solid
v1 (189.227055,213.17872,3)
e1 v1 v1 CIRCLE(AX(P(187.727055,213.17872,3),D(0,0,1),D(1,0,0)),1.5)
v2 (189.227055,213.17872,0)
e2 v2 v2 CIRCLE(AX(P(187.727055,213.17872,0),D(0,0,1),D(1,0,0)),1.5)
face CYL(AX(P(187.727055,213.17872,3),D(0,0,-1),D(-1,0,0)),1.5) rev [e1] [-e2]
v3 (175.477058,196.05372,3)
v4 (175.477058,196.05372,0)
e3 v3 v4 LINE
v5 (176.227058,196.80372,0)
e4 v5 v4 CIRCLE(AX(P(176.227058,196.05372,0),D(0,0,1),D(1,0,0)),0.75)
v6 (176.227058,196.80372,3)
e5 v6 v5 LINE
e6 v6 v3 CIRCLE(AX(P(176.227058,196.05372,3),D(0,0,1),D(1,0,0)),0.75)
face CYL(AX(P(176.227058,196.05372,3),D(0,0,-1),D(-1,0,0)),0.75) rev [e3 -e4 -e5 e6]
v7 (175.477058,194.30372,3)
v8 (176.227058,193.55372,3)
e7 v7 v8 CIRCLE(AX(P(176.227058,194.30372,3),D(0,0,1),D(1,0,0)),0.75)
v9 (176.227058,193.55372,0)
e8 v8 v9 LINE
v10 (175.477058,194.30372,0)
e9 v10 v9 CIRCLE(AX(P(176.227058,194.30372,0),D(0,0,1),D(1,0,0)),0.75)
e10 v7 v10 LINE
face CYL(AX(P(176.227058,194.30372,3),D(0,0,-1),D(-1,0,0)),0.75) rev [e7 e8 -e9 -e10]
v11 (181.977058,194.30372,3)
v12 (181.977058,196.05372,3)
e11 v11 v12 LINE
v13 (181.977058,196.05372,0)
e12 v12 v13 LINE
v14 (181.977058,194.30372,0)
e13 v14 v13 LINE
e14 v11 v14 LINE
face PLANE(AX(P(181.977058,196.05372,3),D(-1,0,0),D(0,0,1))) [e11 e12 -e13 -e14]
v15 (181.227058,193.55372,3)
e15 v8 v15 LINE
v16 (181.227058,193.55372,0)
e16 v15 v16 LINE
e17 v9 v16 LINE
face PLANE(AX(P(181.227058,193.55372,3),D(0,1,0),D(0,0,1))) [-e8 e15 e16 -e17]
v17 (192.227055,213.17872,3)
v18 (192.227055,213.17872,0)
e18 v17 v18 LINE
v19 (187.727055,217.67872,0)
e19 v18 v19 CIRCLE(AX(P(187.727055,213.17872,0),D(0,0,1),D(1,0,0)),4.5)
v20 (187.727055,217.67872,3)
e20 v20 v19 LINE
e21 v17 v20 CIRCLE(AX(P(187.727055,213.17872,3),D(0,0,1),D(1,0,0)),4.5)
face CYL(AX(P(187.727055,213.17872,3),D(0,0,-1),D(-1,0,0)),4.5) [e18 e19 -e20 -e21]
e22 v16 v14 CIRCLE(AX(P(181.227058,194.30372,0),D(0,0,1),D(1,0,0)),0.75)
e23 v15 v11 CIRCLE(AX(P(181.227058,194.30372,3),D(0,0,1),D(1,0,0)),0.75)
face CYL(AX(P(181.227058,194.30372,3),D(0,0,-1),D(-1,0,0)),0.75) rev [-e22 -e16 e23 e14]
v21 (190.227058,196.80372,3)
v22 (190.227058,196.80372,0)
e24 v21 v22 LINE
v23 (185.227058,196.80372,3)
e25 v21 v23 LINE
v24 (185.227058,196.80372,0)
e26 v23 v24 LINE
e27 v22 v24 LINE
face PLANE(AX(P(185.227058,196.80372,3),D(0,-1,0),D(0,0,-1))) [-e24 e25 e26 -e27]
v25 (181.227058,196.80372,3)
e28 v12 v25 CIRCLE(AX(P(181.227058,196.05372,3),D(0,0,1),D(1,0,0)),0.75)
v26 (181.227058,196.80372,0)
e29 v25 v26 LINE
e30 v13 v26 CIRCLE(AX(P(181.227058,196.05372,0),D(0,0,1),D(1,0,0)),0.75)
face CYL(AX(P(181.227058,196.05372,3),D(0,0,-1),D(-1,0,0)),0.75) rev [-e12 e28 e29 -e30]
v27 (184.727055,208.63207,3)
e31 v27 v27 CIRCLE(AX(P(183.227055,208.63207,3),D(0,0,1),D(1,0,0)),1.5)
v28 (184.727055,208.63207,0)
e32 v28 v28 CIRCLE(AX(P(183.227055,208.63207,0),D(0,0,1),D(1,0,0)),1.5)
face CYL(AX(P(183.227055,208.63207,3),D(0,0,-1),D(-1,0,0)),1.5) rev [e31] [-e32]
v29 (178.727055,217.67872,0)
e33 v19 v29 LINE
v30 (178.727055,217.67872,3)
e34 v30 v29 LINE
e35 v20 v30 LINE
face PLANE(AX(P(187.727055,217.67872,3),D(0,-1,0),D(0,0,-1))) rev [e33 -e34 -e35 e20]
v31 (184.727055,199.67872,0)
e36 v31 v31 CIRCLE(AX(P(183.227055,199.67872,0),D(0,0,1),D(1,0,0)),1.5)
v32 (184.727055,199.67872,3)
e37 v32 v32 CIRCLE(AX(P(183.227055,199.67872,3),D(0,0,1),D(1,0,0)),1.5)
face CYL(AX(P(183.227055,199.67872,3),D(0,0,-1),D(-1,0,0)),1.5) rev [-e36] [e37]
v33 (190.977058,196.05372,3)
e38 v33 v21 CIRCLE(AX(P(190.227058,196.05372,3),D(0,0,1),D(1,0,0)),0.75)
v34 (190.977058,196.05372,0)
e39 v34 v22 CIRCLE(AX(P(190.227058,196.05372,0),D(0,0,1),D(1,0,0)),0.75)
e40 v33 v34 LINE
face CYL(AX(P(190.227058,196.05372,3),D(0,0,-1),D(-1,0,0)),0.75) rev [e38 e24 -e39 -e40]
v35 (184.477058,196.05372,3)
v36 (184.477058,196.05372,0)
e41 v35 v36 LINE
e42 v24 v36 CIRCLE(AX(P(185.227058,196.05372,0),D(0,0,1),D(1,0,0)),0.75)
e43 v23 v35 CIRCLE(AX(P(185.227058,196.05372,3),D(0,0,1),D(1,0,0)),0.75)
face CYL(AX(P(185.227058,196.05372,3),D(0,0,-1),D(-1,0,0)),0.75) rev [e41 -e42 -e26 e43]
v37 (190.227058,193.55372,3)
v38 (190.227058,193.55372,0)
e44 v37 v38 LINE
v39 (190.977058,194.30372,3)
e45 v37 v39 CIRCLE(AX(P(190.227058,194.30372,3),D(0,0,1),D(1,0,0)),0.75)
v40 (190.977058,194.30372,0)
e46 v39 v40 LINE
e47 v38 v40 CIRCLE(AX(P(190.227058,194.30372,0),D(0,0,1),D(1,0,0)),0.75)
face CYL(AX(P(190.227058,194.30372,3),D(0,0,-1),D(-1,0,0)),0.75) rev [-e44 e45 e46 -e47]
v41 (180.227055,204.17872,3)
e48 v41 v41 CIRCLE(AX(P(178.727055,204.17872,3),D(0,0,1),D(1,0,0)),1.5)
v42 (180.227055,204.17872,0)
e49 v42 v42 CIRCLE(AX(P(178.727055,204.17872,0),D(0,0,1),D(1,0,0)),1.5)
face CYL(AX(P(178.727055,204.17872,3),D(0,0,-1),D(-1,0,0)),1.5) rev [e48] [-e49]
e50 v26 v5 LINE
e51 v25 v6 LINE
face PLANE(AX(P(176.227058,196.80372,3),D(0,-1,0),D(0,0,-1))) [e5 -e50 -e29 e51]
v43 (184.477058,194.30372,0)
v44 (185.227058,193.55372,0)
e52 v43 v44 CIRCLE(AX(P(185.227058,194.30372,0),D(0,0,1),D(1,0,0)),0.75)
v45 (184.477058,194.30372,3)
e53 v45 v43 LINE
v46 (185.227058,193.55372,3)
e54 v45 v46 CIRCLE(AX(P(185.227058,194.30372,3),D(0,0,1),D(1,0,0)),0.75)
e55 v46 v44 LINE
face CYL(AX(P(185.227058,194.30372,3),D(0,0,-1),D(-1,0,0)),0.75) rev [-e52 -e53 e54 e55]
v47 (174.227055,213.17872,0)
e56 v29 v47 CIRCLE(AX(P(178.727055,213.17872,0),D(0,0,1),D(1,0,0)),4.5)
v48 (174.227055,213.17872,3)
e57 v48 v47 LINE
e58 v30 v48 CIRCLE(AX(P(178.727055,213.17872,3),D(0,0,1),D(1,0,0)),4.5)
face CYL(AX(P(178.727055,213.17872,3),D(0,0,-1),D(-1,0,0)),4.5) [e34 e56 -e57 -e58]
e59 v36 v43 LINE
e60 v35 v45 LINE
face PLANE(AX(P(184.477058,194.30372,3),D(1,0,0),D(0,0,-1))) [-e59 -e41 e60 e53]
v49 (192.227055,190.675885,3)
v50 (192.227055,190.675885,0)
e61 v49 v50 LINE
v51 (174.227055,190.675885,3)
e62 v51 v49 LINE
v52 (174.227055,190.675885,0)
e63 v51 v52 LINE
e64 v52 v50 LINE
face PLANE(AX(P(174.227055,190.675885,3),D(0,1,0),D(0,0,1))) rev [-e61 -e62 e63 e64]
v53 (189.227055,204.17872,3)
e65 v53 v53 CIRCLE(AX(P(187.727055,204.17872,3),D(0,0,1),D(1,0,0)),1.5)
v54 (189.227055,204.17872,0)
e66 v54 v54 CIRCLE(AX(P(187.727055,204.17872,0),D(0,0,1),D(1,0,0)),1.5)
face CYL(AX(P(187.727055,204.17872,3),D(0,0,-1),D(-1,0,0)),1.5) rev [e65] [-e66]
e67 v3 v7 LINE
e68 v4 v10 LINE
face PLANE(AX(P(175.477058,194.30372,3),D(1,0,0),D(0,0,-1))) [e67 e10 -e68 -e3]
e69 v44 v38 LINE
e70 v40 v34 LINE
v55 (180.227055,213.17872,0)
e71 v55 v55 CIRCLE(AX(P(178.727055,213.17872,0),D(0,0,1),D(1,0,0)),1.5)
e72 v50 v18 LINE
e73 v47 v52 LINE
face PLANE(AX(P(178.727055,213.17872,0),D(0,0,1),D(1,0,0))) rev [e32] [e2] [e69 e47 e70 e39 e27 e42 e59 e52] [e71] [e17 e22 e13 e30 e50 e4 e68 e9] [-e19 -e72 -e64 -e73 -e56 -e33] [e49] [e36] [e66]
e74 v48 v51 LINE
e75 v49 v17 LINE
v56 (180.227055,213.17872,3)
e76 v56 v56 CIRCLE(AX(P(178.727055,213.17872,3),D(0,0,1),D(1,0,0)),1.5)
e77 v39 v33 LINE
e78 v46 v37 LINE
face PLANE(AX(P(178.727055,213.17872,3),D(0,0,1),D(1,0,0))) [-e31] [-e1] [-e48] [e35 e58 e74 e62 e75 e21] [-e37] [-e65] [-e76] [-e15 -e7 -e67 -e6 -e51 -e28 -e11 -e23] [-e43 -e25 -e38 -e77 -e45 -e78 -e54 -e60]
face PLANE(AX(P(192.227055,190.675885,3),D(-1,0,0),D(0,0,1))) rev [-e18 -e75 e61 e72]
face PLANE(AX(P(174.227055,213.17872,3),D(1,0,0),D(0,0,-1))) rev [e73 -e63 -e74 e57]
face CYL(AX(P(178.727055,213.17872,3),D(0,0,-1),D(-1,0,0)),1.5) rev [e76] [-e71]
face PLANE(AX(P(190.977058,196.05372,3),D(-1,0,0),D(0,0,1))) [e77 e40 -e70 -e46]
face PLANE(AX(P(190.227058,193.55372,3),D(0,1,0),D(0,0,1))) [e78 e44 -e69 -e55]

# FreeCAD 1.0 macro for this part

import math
import FreeCAD as App
import Part
import Sketcher

doc = App.newDocument("Part")
params = doc.addObject("Spreadsheet::Sheet", "Params")
for row, (alias, value) in enumerate([
    ("sketch1_diameter", "3 mm"),
    ("sketch1_radius", "4.5 mm"),
    ("sketch1_width", "18 mm"),
    ("sketch1_width2", "5 mm"),
    ("sketch1_radius2", "0.75 mm"),
    ("pad1_length", "3 mm"),
], start=1):
    params.set(f"A{row}", alias)
    params.set(f"B{row}", "=" + value)
    params.setAlias(f"B{row}", alias)

body = doc.addObject("PartDesign::Body", "Body")

# Sketch on XY plane
sketch1 = body.newObject("Sketcher::SketchObject", "Sketch")
sketch1.AttachmentSupport = (doc.getObject("XY_Plane"), [""])
sketch1.MapMode = "FlatFace"
sketch1.addGeometry([
    Part.LineSegment(App.Vector(174.2, 190.7, 0), App.Vector(192.2, 190.7, 0)),  # 0
    Part.LineSegment(App.Vector(192.2, 190.7, 0), App.Vector(192.2, 213.2, 0)),  # 1
    Part.ArcOfCircle(Part.Circle(App.Vector(187.7, 213.2, 0), App.Vector(0, 0, 1), 4.5), math.radians(0), math.radians(90)),  # 2
    Part.LineSegment(App.Vector(187.7, 217.7, 0), App.Vector(178.7, 217.7, 0)),  # 3
    Part.ArcOfCircle(Part.Circle(App.Vector(178.7, 213.2, 0), App.Vector(0, 0, 1), 4.5), math.radians(90), math.radians(180)),  # 4
    Part.LineSegment(App.Vector(174.2, 213.2, 0), App.Vector(174.2, 190.7, 0)),  # 5
    Part.ArcOfCircle(Part.Circle(App.Vector(181.2, 194.3, 0), App.Vector(0, 0, 1), 0.8), math.radians(-90), math.radians(0)),  # 6
    Part.LineSegment(App.Vector(181.2, 193.6, 0), App.Vector(176.2, 193.6, 0)),  # 7
    Part.ArcOfCircle(Part.Circle(App.Vector(176.2, 194.3, 0), App.Vector(0, 0, 1), 0.8), math.radians(180), math.radians(270)),  # 8
    Part.LineSegment(App.Vector(175.5, 194.3, 0), App.Vector(175.5, 196.1, 0)),  # 9
    Part.ArcOfCircle(Part.Circle(App.Vector(176.2, 196.1, 0), App.Vector(0, 0, 1), 0.8), math.radians(90), math.radians(180)),  # 10
    Part.LineSegment(App.Vector(176.2, 196.8, 0), App.Vector(181.2, 196.8, 0)),  # 11
    Part.ArcOfCircle(Part.Circle(App.Vector(181.2, 196.1, 0), App.Vector(0, 0, 1), 0.8), math.radians(0), math.radians(90)),  # 12
    Part.LineSegment(App.Vector(182, 196.1, 0), App.Vector(182, 194.3, 0)),  # 13
    Part.Circle(App.Vector(183.2, 199.7, 0), App.Vector(0, 0, 1), 1.5),  # 14
    Part.ArcOfCircle(Part.Circle(App.Vector(190.2, 194.3, 0), App.Vector(0, 0, 1), 0.8), math.radians(-90), math.radians(0)),  # 15
    Part.LineSegment(App.Vector(190.2, 193.6, 0), App.Vector(185.2, 193.6, 0)),  # 16
    Part.ArcOfCircle(Part.Circle(App.Vector(185.2, 194.3, 0), App.Vector(0, 0, 1), 0.8), math.radians(180), math.radians(270)),  # 17
    Part.LineSegment(App.Vector(184.5, 194.3, 0), App.Vector(184.5, 196.1, 0)),  # 18
    Part.ArcOfCircle(Part.Circle(App.Vector(185.2, 196.1, 0), App.Vector(0, 0, 1), 0.8), math.radians(90), math.radians(180)),  # 19
    Part.LineSegment(App.Vector(185.2, 196.8, 0), App.Vector(190.2, 196.8, 0)),  # 20
    Part.ArcOfCircle(Part.Circle(App.Vector(190.2, 196.1, 0), App.Vector(0, 0, 1), 0.8), math.radians(0), math.radians(90)),  # 21
    Part.LineSegment(App.Vector(191, 196.1, 0), App.Vector(191, 194.3, 0)),  # 22
    Part.Circle(App.Vector(178.7, 204.2, 0), App.Vector(0, 0, 1), 1.5),  # 23
    Part.Circle(App.Vector(183.2, 208.6, 0), App.Vector(0, 0, 1), 1.5),  # 24
    Part.Circle(App.Vector(178.7, 213.2, 0), App.Vector(0, 0, 1), 1.5),  # 25
    Part.Circle(App.Vector(187.7, 204.2, 0), App.Vector(0, 0, 1), 1.5),  # 26
    Part.Circle(App.Vector(187.7, 213.2, 0), App.Vector(0, 0, 1), 1.5),  # 27
], False)
sketch1.addConstraint([
    Sketcher.Constraint("Coincident", 0, 2, 1, 1),
    Sketcher.Constraint("Tangent", 1, 2, 2, 1),
    Sketcher.Constraint("Tangent", 2, 2, 3, 1),
    Sketcher.Constraint("Tangent", 3, 2, 4, 1),
    Sketcher.Constraint("Tangent", 4, 2, 5, 1),
    Sketcher.Constraint("Coincident", 5, 2, 0, 1),
    Sketcher.Constraint("Tangent", 6, 1, 7, 1),
    Sketcher.Constraint("Tangent", 7, 2, 8, 2),
    Sketcher.Constraint("Tangent", 8, 1, 9, 1),
    Sketcher.Constraint("Tangent", 9, 2, 10, 2),
    Sketcher.Constraint("Tangent", 10, 1, 11, 1),
    Sketcher.Constraint("Tangent", 11, 2, 12, 2),
    Sketcher.Constraint("Tangent", 12, 1, 13, 1),
    Sketcher.Constraint("Tangent", 13, 2, 6, 2),
    Sketcher.Constraint("Tangent", 15, 1, 16, 1),
    Sketcher.Constraint("Tangent", 16, 2, 17, 2),
    Sketcher.Constraint("Tangent", 17, 1, 18, 1),
    Sketcher.Constraint("Tangent", 18, 2, 19, 2),
    Sketcher.Constraint("Tangent", 19, 1, 20, 1),
    Sketcher.Constraint("Tangent", 20, 2, 21, 2),
    Sketcher.Constraint("Tangent", 21, 1, 22, 1),
    Sketcher.Constraint("Tangent", 22, 2, 15, 2),
    Sketcher.Constraint("Horizontal", 0),
    Sketcher.Constraint("Vertical", 1),
    Sketcher.Constraint("Horizontal", 3),
    Sketcher.Constraint("Vertical", 5),
    Sketcher.Constraint("Horizontal", 7),
    Sketcher.Constraint("Vertical", 9),
    Sketcher.Constraint("Horizontal", 11),
    Sketcher.Constraint("Vertical", 13),
    Sketcher.Constraint("Horizontal", 16),
    Sketcher.Constraint("Vertical", 18),
    Sketcher.Constraint("Horizontal", 20),
    Sketcher.Constraint("Vertical", 22),
    Sketcher.Constraint("Coincident", 25, 3, 4, 3),
    Sketcher.Constraint("Coincident", 27, 3, 2, 3),
    Sketcher.Constraint("Equal", 2, 4),
    Sketcher.Constraint("Equal", 6, 8),
    Sketcher.Constraint("Equal", 8, 10),
    Sketcher.Constraint("Equal", 10, 12),
    Sketcher.Constraint("Equal", 12, 15),
    Sketcher.Constraint("Equal", 15, 17),
    Sketcher.Constraint("Equal", 17, 19),
    Sketcher.Constraint("Equal", 19, 21),
    Sketcher.Constraint("Equal", 14, 23),
    Sketcher.Constraint("Equal", 23, 24),
    Sketcher.Constraint("Equal", 24, 25),
    Sketcher.Constraint("Equal", 25, 26),
    Sketcher.Constraint("Equal", 26, 27),
    Sketcher.Constraint("Horizontal", 8, 3, 15, 3),
    Sketcher.Constraint("Horizontal", 12, 3, 19, 3),
    Sketcher.Constraint("Horizontal", 23, 3, 26, 3),
    Sketcher.Constraint("Vertical", 4, 3, 23, 3),
    Sketcher.Constraint("Vertical", 14, 3, 24, 3),
    Sketcher.Constraint("Vertical", 2, 3, 26, 3),
    Sketcher.Constraint("Equal", 11, 16),
    Sketcher.Constraint("Diameter", 14, 3.0),
    Sketcher.Constraint("Radius", 2, 4.5),
    Sketcher.Constraint("DistanceX", 0, 1, 0, 2, 18.0),
    Sketcher.Constraint("DistanceX", 7, 2, 7, 1, 5.0),
    Sketcher.Constraint("Radius", 6, 0.75),
    Sketcher.Constraint("DistanceX", 6, 3, 15, 3, 9.0),
    Sketcher.Constraint("DistanceY", 23, 3, 4, 3, 9.0),
    Sketcher.Constraint("DistanceX", 24, 3, 1, 2, 9.0),
    Sketcher.Constraint("DistanceY", 9, 1, 9, 2, 1.75),
    Sketcher.Constraint("DistanceY", 14, 3, 2, 3, 13.5),
    Sketcher.Constraint("DistanceY", 6, 3, 4, 3, 18.875),
    Sketcher.Constraint("DistanceY", 1, 1, 1, 2, 22.502835),
    Sketcher.Constraint("DistanceY", -1, 1, 2, 3, 213.17872),
    Sketcher.Constraint("DistanceX", -1, 1, 6, 3, 181.227058),
    Sketcher.Constraint("DistanceY", -1, 1, 24, 3, 208.63207),
    Sketcher.Constraint("DistanceX", -1, 1, 2, 3, 187.727055),
])
sketch1.setExpression("Constraints[56]", "Params.sketch1_diameter")
sketch1.setExpression("Constraints[57]", "Params.sketch1_radius")
sketch1.setExpression("Constraints[58]", "Params.sketch1_width")
sketch1.setExpression("Constraints[59]", "Params.sketch1_width2")
sketch1.setExpression("Constraints[60]", "Params.sketch1_radius2")
pad1 = body.newObject("PartDesign::Pad", "Pad")
pad1.Profile = sketch1
pad1.setExpression("Length", "Params.pad1_length")

doc.recompute()
